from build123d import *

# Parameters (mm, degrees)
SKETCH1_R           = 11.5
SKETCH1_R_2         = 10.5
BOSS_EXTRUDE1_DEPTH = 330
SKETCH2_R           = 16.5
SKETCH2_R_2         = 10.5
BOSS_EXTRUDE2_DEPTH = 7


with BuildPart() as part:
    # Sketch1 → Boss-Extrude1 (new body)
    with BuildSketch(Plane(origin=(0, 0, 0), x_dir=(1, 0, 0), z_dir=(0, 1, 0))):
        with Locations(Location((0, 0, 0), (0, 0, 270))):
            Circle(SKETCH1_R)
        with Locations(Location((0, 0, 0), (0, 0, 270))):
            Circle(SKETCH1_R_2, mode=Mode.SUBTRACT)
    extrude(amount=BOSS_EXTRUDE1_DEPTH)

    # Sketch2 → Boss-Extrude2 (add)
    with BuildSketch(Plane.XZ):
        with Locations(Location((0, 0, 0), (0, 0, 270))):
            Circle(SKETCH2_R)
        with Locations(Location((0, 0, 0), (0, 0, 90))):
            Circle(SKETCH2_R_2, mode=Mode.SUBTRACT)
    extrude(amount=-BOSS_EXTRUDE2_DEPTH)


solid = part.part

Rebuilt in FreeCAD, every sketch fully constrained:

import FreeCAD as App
import Part
import Sketcher

doc = App.newDocument("Part")
body = doc.addObject("PartDesign::Body", "Body")

sketch1 = body.newObject("Sketcher::SketchObject", "Sketch")
sketch1.AttachmentSupport = (doc.getObject("XZ_Plane"), [""])
sketch1.MapMode = "FlatFace"
sketch1.addGeometry(Part.Circle(App.Vector(0, 0, 0), App.Vector(0, 0, 1), 12), False)
sketch1.addGeometry(Part.Circle(App.Vector(0, 0, 0), App.Vector(0, 0, 1), 10), False)
sketch1.addConstraint(Sketcher.Constraint("Coincident", 0, 3, -1, 1))
sketch1.addConstraint(Sketcher.Constraint("Coincident", 1, 3, -1, 1))
sketch1.addConstraint(Sketcher.Constraint("Diameter", 0, 23.0))
sketch1.addConstraint(Sketcher.Constraint("Diameter", 1, 21.0))
pad1 = body.newObject("PartDesign::Pad", "Pad")
pad1.Profile = sketch1
pad1.Length = 330
pad1.Reversed = True

sketch2 = body.newObject("Sketcher::SketchObject", "Sketch001")
sketch2.AttachmentSupport = (doc.getObject("XZ_Plane"), [""])
sketch2.MapMode = "FlatFace"
sketch2.addGeometry(Part.Circle(App.Vector(0, 0, 0), App.Vector(0, 0, 1), 16), False)
sketch2.addGeometry(Part.Circle(App.Vector(0, 0, 0), App.Vector(0, 0, 1), 10), False)
sketch2.addConstraint(Sketcher.Constraint("Coincident", 0, 3, -1, 1))
sketch2.addConstraint(Sketcher.Constraint("Coincident", 1, 3, -1, 1))
sketch2.addConstraint(Sketcher.Constraint("Diameter", 0, 33.0))
sketch2.addConstraint(Sketcher.Constraint("Diameter", 1, 21.0))
pad2 = body.newObject("PartDesign::Pad", "Pad001")
pad2.Profile = sketch2
pad2.Length = 7
pad2.Reversed = True

doc.recompute()
